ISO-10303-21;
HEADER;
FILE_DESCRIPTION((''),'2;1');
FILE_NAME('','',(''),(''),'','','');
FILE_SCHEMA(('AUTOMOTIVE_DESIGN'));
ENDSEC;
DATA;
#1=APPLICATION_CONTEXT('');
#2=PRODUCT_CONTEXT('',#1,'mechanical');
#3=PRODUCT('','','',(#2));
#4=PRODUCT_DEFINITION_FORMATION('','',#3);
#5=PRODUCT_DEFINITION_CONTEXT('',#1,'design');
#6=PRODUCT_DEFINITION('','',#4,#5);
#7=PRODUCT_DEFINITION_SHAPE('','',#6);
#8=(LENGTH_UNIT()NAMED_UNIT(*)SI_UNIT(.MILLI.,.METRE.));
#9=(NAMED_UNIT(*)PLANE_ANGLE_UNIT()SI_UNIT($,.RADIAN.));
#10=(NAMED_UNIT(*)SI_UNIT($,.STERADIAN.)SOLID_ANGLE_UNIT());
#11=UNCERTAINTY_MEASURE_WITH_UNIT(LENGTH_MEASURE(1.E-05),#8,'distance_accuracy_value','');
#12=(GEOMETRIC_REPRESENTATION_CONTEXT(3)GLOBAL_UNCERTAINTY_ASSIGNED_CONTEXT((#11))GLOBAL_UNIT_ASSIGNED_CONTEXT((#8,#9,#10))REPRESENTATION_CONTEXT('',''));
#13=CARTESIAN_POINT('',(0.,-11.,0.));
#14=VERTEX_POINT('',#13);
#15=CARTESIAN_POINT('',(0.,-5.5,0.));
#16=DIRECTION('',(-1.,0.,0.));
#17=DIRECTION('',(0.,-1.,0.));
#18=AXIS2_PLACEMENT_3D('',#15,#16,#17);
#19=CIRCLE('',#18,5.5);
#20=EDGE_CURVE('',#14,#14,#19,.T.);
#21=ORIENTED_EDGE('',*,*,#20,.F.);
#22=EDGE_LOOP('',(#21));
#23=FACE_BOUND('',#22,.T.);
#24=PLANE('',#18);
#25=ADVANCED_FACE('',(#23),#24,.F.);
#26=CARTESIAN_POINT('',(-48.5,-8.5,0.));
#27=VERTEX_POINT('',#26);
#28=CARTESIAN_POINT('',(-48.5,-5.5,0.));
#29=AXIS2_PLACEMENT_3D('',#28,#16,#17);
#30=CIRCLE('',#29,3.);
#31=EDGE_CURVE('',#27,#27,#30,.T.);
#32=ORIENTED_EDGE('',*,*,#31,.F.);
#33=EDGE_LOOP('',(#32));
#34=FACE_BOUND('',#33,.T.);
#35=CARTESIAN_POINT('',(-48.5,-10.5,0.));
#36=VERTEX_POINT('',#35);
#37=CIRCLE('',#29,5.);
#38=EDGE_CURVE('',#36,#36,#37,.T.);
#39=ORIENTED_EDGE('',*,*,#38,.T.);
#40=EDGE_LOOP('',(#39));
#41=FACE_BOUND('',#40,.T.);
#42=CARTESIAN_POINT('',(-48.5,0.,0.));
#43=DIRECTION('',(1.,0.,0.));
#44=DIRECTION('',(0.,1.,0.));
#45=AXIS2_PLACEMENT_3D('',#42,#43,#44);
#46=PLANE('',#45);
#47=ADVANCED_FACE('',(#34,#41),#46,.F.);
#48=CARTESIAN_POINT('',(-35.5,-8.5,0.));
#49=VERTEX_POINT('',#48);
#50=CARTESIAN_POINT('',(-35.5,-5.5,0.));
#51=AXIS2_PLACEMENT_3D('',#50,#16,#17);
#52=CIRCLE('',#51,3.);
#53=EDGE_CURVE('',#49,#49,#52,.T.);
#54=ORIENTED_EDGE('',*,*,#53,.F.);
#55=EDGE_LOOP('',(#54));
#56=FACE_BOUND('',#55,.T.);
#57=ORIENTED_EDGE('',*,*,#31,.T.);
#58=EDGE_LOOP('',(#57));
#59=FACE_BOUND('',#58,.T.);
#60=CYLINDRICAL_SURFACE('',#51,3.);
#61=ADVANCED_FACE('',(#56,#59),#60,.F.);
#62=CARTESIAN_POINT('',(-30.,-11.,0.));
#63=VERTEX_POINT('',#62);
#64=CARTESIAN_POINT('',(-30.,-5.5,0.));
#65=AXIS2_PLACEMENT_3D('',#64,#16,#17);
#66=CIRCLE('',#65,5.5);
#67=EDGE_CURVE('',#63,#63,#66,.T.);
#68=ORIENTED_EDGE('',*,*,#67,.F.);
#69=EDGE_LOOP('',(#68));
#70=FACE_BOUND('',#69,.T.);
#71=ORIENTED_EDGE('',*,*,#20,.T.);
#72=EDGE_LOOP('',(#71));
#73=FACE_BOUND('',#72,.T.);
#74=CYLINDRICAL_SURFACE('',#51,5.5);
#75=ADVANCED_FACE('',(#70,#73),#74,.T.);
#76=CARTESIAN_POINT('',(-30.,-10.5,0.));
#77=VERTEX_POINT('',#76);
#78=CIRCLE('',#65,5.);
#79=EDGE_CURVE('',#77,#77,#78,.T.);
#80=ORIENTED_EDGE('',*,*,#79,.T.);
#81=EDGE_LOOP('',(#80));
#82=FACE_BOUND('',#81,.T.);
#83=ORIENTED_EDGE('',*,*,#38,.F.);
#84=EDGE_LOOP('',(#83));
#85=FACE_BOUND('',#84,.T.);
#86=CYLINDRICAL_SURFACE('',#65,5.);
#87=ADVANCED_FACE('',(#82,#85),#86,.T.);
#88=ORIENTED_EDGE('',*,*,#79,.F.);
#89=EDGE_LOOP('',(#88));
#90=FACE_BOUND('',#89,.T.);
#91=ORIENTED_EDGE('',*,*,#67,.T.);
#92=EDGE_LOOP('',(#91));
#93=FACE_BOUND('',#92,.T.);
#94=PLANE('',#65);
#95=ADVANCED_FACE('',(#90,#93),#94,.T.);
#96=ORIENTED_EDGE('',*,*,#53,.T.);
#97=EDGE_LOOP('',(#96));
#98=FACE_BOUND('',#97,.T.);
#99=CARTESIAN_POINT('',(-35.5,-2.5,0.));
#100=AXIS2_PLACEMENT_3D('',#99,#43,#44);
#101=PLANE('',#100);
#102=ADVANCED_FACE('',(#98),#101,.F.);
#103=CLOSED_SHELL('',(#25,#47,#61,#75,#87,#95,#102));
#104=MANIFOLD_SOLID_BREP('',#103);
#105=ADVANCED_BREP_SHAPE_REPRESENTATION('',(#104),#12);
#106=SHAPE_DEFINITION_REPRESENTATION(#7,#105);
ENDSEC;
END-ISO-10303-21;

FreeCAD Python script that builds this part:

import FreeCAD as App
import Part
import Sketcher

V = App.Vector


def add_polygon(sketch, points):
    """Adds a closed chain of lines whose ends are joined by coincident constraints."""
    first, n = sketch.GeometryCount, len(points)
    for a, b in zip(points, points[1:] + points[:1]):
        sketch.addGeometry(Part.LineSegment(App.Vector(*a, 0), App.Vector(*b, 0)), False)
    for i in range(n):
        sketch.addConstraint(Sketcher.Constraint("Coincident", first + i, 2, first + (i + 1) % n, 1))

doc = App.newDocument("Part")
body = doc.addObject("PartDesign::Body", "Body")

# Sketch on XY plane
sketch1 = body.newObject("Sketcher::SketchObject", "Sketch")
sketch1.AttachmentSupport = (doc.getObject("XY_Plane"), [""])
sketch1.MapMode = "FlatFace"
add_polygon(sketch1, [(0, 0), (-48.5, 0), (-48.5, -2.5), (-35.5, -2.5), (-35.5, -5.5), (0, -5.5)])  # lines 0-5
sketch1.addGeometry(Part.LineSegment(V(-48.5, -5.5, 0), V(0, -5.5, 0)), True)  # axis
sketch1.addConstraint(Sketcher.Constraint("Horizontal", 0))
sketch1.addConstraint(Sketcher.Constraint("Vertical", 1))
sketch1.addConstraint(Sketcher.Constraint("Horizontal", 2))
sketch1.addConstraint(Sketcher.Constraint("Vertical", 3))
sketch1.addConstraint(Sketcher.Constraint("Horizontal", 4))
sketch1.addConstraint(Sketcher.Constraint("Vertical", 5))
sketch1.addConstraint(Sketcher.Constraint("Horizontal", 6))
sketch1.addConstraint(Sketcher.Constraint("Coincident", 5, 2, -1, 1))
sketch1.addConstraint(Sketcher.Constraint("Coincident", 6, 2, 4, 2))
sketch1.addConstraint(Sketcher.Constraint("Vertical", 1, 2, 6, 1))
sketch1.addConstraint(Sketcher.Constraint("DistanceX", 2, 1, 2, 2, 13.0))
sketch1.addConstraint(Sketcher.Constraint("DistanceY", 3, 2, 3, 1, 3.0))
sketch1.addConstraint(Sketcher.Constraint("DistanceX", 0, 2, 0, 1, 48.5))
sketch1.addConstraint(Sketcher.Constraint("DistanceY", 1, 2, 1, 1, 2.5))
revolution = body.newObject("PartDesign::Revolution", "Revolution")
revolution.Profile = sketch1
revolution.ReferenceAxis = (sketch1, ["Axis0"])
revolution.Angle = 360

# Sketch on YZ plane
sketch2 = body.newObject("Sketcher::SketchObject", "Sketch001")
sketch2.AttachmentSupport = (doc.getObject("YZ_Plane"), [""])
sketch2.MapMode = "FlatFace"
sketch2.AttachmentOffset = App.Placement(V(0, 0, -48.5), App.Rotation())
add_polygon(sketch2, [(6, -12), (-17, -12), (-17, 12), (6, 12)])  # lines 0-3
sketch2.addGeometry(Part.Circle(V(-6, 0, 0), V(0, 0, 1), 5), False)  # 4
sketch2.addConstraint(Sketcher.Constraint("Horizontal", 0))
sketch2.addConstraint(Sketcher.Constraint("Vertical", 1))
sketch2.addConstraint(Sketcher.Constraint("Horizontal", 2))
sketch2.addConstraint(Sketcher.Constraint("Vertical", 3))
sketch2.addConstraint(Sketcher.Constraint("PointOnObject", 4, 3, -1))
sketch2.addConstraint(Sketcher.Constraint("Equal", 2, 1))
sketch2.addConstraint(Sketcher.Constraint("Diameter", 4, 10.0))
sketch2.addConstraint(Sketcher.Constraint("DistanceX", 4, 3, -1, 1, 5.5))
sketch2.addConstraint(Sketcher.Constraint("DistanceX", 0, 2, 0, 1, 23.186))
sketch2.addConstraint(Sketcher.Constraint("DistanceX", 0, 2, -1, 1, 17.093))
sketch2.addConstraint(Sketcher.Constraint("DistanceY", 0, 2, -1, 1, 11.593))
pocket1 = body.newObject("PartDesign::Pocket", "Pocket")
pocket1.Profile = sketch2
pocket1.Length = 18.5
pocket1.Reversed = True

doc.recompute()
